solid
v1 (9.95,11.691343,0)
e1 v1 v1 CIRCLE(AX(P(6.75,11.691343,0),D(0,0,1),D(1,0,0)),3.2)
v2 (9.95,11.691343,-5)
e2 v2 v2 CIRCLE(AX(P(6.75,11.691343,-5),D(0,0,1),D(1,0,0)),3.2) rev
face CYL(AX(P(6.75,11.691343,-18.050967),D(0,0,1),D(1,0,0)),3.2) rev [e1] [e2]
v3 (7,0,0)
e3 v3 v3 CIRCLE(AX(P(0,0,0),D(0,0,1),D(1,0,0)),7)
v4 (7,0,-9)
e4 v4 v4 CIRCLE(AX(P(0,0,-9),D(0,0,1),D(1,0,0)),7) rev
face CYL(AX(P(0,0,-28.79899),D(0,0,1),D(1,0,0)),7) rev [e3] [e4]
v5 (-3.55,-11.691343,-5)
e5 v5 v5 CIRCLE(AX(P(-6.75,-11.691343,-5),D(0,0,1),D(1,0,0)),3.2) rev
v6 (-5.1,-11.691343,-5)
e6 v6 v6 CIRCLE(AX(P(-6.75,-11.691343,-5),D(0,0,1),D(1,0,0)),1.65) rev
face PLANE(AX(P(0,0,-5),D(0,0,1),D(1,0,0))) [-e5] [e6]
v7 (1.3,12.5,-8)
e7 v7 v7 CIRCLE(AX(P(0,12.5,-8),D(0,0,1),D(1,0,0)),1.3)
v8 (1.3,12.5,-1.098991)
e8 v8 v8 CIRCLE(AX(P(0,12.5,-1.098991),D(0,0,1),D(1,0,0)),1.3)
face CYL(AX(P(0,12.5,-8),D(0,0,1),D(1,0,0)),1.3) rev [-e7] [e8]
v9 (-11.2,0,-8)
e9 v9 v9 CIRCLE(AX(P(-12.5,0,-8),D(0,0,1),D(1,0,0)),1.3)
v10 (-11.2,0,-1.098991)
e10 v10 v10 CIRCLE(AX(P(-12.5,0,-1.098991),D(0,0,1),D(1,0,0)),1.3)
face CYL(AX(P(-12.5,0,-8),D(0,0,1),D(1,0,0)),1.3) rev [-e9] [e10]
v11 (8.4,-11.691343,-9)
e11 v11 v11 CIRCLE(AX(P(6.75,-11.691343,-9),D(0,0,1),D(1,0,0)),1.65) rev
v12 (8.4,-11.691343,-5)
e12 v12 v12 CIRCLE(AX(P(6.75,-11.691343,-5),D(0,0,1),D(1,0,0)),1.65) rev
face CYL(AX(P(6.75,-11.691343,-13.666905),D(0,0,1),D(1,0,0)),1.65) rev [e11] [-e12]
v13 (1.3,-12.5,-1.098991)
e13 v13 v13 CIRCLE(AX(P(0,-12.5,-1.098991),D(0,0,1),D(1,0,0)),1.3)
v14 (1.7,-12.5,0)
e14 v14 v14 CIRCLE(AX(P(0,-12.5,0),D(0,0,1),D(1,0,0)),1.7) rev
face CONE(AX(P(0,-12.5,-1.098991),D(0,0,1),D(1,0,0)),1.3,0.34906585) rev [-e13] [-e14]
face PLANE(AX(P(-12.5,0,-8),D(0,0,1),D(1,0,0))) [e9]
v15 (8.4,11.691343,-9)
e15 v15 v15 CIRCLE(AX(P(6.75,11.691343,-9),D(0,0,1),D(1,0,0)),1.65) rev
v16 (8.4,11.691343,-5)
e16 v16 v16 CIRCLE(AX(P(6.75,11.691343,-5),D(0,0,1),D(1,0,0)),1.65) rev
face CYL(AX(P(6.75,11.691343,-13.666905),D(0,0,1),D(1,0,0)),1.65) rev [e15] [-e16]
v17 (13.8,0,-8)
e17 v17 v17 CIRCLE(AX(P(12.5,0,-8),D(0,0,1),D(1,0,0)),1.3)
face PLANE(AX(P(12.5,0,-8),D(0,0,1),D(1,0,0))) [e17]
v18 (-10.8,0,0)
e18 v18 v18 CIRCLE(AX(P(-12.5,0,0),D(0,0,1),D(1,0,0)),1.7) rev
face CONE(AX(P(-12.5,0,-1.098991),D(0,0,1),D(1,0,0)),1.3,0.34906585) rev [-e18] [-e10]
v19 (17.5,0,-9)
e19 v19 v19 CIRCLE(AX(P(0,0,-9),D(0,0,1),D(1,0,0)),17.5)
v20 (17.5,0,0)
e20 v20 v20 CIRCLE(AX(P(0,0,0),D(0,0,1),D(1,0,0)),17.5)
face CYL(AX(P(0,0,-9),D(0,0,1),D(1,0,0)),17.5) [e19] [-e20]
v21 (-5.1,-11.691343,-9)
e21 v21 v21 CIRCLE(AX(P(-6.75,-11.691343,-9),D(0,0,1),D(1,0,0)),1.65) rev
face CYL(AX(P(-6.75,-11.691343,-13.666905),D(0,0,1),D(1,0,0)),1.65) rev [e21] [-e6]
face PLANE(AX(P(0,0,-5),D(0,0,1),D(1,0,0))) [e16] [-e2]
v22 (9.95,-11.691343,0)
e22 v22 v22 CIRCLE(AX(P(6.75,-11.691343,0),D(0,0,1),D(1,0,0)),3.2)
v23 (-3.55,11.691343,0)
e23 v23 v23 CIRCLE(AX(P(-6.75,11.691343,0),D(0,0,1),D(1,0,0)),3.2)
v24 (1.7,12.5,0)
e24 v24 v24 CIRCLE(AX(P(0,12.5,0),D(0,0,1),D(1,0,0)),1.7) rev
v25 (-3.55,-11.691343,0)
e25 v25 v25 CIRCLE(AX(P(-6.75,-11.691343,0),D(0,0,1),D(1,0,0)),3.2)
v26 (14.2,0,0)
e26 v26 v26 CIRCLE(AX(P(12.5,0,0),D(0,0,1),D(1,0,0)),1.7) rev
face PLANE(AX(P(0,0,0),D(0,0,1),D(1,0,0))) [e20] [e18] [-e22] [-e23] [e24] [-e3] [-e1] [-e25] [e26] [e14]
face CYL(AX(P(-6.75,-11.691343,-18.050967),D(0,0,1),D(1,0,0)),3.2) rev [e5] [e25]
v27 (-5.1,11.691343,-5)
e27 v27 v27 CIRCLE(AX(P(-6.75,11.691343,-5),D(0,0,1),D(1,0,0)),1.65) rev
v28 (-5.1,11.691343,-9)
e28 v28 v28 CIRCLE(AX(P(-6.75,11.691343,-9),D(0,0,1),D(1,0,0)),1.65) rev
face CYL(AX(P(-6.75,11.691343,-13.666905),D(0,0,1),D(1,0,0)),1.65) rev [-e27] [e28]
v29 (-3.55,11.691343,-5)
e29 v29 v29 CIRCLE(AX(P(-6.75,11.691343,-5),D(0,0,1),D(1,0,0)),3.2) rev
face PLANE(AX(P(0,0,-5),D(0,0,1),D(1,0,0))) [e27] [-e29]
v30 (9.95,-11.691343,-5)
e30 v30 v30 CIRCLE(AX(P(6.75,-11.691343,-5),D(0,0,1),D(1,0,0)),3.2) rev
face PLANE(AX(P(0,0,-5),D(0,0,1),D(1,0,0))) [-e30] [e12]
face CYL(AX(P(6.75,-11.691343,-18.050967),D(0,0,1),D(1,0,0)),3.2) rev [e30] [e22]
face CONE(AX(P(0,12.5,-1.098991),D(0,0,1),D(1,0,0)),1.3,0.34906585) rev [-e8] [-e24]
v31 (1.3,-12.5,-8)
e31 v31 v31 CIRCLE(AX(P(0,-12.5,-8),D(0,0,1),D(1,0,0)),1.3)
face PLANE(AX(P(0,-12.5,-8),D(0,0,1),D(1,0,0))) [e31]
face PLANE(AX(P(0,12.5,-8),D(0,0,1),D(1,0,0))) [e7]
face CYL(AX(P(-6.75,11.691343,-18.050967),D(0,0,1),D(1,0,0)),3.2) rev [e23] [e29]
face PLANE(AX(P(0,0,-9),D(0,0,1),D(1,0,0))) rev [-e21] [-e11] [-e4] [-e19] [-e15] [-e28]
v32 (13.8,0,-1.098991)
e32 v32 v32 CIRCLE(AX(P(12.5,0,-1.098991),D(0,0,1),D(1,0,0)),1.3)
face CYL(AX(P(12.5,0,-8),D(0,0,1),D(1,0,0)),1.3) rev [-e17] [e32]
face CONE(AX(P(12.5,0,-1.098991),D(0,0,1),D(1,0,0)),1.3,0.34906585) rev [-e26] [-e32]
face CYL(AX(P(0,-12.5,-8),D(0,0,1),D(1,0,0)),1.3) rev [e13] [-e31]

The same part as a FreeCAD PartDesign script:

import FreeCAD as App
import Part
import Sketcher
from FreeCAD import Vector
Q = App.Units.Quantity


def edges_at(feature, points):
    """Names of the edges that pass closest to the given points."""
    edges = feature.Shape.Edges
    near = lambda p: min(range(len(edges)), key=lambda i: edges[i].distToShape(Part.Vertex(*p))[0])
    return sorted({f"Edge{near(p) + 1}" for p in points})

doc = App.newDocument("Part")
body = doc.addObject("PartDesign::Body", "Body")

sketch1 = doc.addObject("Sketcher::SketchObject", "Sketch")
body.addObject(sketch1)
sketch1.AttachmentSupport = (doc.XY_Plane, [""])
sketch1.MapMode = "FlatFace"
sketch1.addGeometry(Part.Circle(Vector(0, 0, 0), Vector(0, 0, 1), 18), False)
sketch1.addConstraint(Sketcher.Constraint("Coincident", 0, 3, -1, 1))
sketch1.addConstraint(Sketcher.Constraint("Diameter", 0, Q("35 mm")))
pad1 = doc.addObject("PartDesign::Pad", "Pad")
body.addObject(pad1)
pad1.Profile = sketch1
pad1.Length = 9
pad1.Reversed = True

sketch2 = doc.addObject("Sketcher::SketchObject", "Sketch001")
body.addObject(sketch2)
sketch2.AttachmentSupport = (doc.XY_Plane, [""])
sketch2.MapMode = "FlatFace"
sketch2.addGeometry(Part.Circle(Vector(12.5, 0, 0), Vector(0, 0, 1), 1.3), False)
sketch2.addGeometry(Part.Circle(Vector(0, -12.5, 0), Vector(0, 0, 1), 1.3), False)
sketch2.addGeometry(Part.Circle(Vector(-12.5, 0, 0), Vector(0, 0, 1), 1.3), False)
sketch2.addGeometry(Part.Circle(Vector(0, 12.5, 0), Vector(0, 0, 1), 1.3), False)
sketch2.addConstraint(Sketcher.Constraint("Equal", 0, 1))
sketch2.addConstraint(Sketcher.Constraint("Equal", 1, 2))
sketch2.addConstraint(Sketcher.Constraint("Equal", 2, 3))
sketch2.addConstraint(Sketcher.Constraint("Symmetric", 0, 3, 2, 3, -1, 1))
sketch2.addConstraint(Sketcher.Constraint("Symmetric", 1, 3, 3, 3, -1, 1))
sketch2.addConstraint(Sketcher.Constraint("PointOnObject", 0, 3, -1))
sketch2.addConstraint(Sketcher.Constraint("PointOnObject", 1, 3, -2))
sketch2.addConstraint(Sketcher.Constraint("Diameter", 0, Q("2.6 mm")))
sketch2.addConstraint(Sketcher.Constraint("DistanceX", 2, 3, 0, 3, Q("25 mm")))
sketch2.addConstraint(Sketcher.Constraint("DistanceY", 1, 3, 3, 3, Q("25 mm")))
pocket1 = doc.addObject("PartDesign::Pocket", "Pocket")
body.addObject(pocket1)
pocket1.Profile = sketch2
pocket1.Length = 8

sketch3 = doc.addObject("Sketcher::SketchObject", "Sketch002")
body.addObject(sketch3)
sketch3.AttachmentSupport = (doc.XY_Plane, [""])
sketch3.MapMode = "FlatFace"
sketch3.addGeometry(Part.Circle(Vector(6.8, -11.7, 0), Vector(0, 0, 1), 1.6), False)
sketch3.addGeometry(Part.Circle(Vector(-6.8, -11.7, 0), Vector(0, 0, 1), 1.6), False)
sketch3.addGeometry(Part.Circle(Vector(-6.8, 11.7, 0), Vector(0, 0, 1), 1.6), False)
sketch3.addGeometry(Part.Circle(Vector(6.8, 11.7, 0), Vector(0, 0, 1), 1.6), False)
sketch3.addConstraint(Sketcher.Constraint("Equal", 0, 1))
sketch3.addConstraint(Sketcher.Constraint("Equal", 1, 2))
sketch3.addConstraint(Sketcher.Constraint("Equal", 2, 3))
sketch3.addConstraint(Sketcher.Constraint("Symmetric", 0, 3, 2, 3, -1, 1))
sketch3.addConstraint(Sketcher.Constraint("Symmetric", 1, 3, 3, 3, -1, 1))
sketch3.addConstraint(Sketcher.Constraint("Symmetric", 0, 3, 1, 3, -2))
sketch3.addConstraint(Sketcher.Constraint("Diameter", 0, Q("3.3 mm")))
sketch3.addConstraint(Sketcher.Constraint("DistanceX", 1, 3, 0, 3, Q("13.5 mm")))
sketch3.addConstraint(Sketcher.Constraint("DistanceY", 0, 3, -1, 1, Q("11.691343 mm")))
pocket2 = doc.addObject("PartDesign::Pocket", "Pocket001")
body.addObject(pocket2)
pocket2.Profile = sketch3
pocket2.Length = 9

sketch4 = doc.addObject("Sketcher::SketchObject", "Sketch003")
body.addObject(sketch4)
sketch4.AttachmentSupport = (doc.XY_Plane, [""])
sketch4.MapMode = "FlatFace"
sketch4.addGeometry(Part.Circle(Vector(0, 0, 0), Vector(0, 0, 1), 7), False)
sketch4.addConstraint(Sketcher.Constraint("Coincident", 0, 3, -1, 1))
sketch4.addConstraint(Sketcher.Constraint("Diameter", 0, Q("14 mm")))
pocket3 = doc.addObject("PartDesign::Pocket", "Pocket002")
body.addObject(pocket3)
pocket3.Profile = sketch4
pocket3.Length = 9
doc.recompute()

chamfer = doc.addObject("PartDesign::Chamfer", "Chamfer")
body.addObject(chamfer)
chamfer.Base = (pocket3, edges_at(pocket3, [
    (-1.3, -12.5, 0),
    (-13.8, 0, 0),
    (-1.3, 12.5, 0),
    (11.2, 0, 0),
]))
chamfer.ChamferType = "Two distances"
chamfer.Size = 0.4
chamfer.Size2 = 1.098991

sketch5 = doc.addObject("Sketcher::SketchObject", "Sketch004")
body.addObject(sketch5)
sketch5.AttachmentSupport = (doc.XY_Plane, [""])
sketch5.MapMode = "FlatFace"
sketch5.addGeometry(Part.Circle(Vector(-6.8, 11.7, 0), Vector(0, 0, 1), 3.2), False)
sketch5.addGeometry(Part.Circle(Vector(6.8, 11.7, 0), Vector(0, 0, 1), 3.2), False)
sketch5.addGeometry(Part.Circle(Vector(6.8, -11.7, 0), Vector(0, 0, 1), 3.2), False)
sketch5.addGeometry(Part.Circle(Vector(-6.8, -11.7, 0), Vector(0, 0, 1), 3.2), False)
sketch5.addConstraint(Sketcher.Constraint("Equal", 0, 1))
sketch5.addConstraint(Sketcher.Constraint("Equal", 1, 2))
sketch5.addConstraint(Sketcher.Constraint("Equal", 2, 3))
sketch5.addConstraint(Sketcher.Constraint("Symmetric", 0, 3, 2, 3, -1, 1))
sketch5.addConstraint(Sketcher.Constraint("Symmetric", 1, 3, 3, 3, -1, 1))
sketch5.addConstraint(Sketcher.Constraint("Symmetric", 0, 3, 1, 3, -2))
sketch5.addConstraint(Sketcher.Constraint("Diameter", 0, Q("6.4 mm")))
sketch5.addConstraint(Sketcher.Constraint("DistanceX", 0, 3, 1, 3, Q("13.5 mm")))
sketch5.addConstraint(Sketcher.Constraint("DistanceY", -1, 1, 0, 3, Q("11.691343 mm")))
pocket4 = doc.addObject("PartDesign::Pocket", "Pocket003")
body.addObject(pocket4)
pocket4.Profile = sketch5
pocket4.Length = 5

doc.recompute()
